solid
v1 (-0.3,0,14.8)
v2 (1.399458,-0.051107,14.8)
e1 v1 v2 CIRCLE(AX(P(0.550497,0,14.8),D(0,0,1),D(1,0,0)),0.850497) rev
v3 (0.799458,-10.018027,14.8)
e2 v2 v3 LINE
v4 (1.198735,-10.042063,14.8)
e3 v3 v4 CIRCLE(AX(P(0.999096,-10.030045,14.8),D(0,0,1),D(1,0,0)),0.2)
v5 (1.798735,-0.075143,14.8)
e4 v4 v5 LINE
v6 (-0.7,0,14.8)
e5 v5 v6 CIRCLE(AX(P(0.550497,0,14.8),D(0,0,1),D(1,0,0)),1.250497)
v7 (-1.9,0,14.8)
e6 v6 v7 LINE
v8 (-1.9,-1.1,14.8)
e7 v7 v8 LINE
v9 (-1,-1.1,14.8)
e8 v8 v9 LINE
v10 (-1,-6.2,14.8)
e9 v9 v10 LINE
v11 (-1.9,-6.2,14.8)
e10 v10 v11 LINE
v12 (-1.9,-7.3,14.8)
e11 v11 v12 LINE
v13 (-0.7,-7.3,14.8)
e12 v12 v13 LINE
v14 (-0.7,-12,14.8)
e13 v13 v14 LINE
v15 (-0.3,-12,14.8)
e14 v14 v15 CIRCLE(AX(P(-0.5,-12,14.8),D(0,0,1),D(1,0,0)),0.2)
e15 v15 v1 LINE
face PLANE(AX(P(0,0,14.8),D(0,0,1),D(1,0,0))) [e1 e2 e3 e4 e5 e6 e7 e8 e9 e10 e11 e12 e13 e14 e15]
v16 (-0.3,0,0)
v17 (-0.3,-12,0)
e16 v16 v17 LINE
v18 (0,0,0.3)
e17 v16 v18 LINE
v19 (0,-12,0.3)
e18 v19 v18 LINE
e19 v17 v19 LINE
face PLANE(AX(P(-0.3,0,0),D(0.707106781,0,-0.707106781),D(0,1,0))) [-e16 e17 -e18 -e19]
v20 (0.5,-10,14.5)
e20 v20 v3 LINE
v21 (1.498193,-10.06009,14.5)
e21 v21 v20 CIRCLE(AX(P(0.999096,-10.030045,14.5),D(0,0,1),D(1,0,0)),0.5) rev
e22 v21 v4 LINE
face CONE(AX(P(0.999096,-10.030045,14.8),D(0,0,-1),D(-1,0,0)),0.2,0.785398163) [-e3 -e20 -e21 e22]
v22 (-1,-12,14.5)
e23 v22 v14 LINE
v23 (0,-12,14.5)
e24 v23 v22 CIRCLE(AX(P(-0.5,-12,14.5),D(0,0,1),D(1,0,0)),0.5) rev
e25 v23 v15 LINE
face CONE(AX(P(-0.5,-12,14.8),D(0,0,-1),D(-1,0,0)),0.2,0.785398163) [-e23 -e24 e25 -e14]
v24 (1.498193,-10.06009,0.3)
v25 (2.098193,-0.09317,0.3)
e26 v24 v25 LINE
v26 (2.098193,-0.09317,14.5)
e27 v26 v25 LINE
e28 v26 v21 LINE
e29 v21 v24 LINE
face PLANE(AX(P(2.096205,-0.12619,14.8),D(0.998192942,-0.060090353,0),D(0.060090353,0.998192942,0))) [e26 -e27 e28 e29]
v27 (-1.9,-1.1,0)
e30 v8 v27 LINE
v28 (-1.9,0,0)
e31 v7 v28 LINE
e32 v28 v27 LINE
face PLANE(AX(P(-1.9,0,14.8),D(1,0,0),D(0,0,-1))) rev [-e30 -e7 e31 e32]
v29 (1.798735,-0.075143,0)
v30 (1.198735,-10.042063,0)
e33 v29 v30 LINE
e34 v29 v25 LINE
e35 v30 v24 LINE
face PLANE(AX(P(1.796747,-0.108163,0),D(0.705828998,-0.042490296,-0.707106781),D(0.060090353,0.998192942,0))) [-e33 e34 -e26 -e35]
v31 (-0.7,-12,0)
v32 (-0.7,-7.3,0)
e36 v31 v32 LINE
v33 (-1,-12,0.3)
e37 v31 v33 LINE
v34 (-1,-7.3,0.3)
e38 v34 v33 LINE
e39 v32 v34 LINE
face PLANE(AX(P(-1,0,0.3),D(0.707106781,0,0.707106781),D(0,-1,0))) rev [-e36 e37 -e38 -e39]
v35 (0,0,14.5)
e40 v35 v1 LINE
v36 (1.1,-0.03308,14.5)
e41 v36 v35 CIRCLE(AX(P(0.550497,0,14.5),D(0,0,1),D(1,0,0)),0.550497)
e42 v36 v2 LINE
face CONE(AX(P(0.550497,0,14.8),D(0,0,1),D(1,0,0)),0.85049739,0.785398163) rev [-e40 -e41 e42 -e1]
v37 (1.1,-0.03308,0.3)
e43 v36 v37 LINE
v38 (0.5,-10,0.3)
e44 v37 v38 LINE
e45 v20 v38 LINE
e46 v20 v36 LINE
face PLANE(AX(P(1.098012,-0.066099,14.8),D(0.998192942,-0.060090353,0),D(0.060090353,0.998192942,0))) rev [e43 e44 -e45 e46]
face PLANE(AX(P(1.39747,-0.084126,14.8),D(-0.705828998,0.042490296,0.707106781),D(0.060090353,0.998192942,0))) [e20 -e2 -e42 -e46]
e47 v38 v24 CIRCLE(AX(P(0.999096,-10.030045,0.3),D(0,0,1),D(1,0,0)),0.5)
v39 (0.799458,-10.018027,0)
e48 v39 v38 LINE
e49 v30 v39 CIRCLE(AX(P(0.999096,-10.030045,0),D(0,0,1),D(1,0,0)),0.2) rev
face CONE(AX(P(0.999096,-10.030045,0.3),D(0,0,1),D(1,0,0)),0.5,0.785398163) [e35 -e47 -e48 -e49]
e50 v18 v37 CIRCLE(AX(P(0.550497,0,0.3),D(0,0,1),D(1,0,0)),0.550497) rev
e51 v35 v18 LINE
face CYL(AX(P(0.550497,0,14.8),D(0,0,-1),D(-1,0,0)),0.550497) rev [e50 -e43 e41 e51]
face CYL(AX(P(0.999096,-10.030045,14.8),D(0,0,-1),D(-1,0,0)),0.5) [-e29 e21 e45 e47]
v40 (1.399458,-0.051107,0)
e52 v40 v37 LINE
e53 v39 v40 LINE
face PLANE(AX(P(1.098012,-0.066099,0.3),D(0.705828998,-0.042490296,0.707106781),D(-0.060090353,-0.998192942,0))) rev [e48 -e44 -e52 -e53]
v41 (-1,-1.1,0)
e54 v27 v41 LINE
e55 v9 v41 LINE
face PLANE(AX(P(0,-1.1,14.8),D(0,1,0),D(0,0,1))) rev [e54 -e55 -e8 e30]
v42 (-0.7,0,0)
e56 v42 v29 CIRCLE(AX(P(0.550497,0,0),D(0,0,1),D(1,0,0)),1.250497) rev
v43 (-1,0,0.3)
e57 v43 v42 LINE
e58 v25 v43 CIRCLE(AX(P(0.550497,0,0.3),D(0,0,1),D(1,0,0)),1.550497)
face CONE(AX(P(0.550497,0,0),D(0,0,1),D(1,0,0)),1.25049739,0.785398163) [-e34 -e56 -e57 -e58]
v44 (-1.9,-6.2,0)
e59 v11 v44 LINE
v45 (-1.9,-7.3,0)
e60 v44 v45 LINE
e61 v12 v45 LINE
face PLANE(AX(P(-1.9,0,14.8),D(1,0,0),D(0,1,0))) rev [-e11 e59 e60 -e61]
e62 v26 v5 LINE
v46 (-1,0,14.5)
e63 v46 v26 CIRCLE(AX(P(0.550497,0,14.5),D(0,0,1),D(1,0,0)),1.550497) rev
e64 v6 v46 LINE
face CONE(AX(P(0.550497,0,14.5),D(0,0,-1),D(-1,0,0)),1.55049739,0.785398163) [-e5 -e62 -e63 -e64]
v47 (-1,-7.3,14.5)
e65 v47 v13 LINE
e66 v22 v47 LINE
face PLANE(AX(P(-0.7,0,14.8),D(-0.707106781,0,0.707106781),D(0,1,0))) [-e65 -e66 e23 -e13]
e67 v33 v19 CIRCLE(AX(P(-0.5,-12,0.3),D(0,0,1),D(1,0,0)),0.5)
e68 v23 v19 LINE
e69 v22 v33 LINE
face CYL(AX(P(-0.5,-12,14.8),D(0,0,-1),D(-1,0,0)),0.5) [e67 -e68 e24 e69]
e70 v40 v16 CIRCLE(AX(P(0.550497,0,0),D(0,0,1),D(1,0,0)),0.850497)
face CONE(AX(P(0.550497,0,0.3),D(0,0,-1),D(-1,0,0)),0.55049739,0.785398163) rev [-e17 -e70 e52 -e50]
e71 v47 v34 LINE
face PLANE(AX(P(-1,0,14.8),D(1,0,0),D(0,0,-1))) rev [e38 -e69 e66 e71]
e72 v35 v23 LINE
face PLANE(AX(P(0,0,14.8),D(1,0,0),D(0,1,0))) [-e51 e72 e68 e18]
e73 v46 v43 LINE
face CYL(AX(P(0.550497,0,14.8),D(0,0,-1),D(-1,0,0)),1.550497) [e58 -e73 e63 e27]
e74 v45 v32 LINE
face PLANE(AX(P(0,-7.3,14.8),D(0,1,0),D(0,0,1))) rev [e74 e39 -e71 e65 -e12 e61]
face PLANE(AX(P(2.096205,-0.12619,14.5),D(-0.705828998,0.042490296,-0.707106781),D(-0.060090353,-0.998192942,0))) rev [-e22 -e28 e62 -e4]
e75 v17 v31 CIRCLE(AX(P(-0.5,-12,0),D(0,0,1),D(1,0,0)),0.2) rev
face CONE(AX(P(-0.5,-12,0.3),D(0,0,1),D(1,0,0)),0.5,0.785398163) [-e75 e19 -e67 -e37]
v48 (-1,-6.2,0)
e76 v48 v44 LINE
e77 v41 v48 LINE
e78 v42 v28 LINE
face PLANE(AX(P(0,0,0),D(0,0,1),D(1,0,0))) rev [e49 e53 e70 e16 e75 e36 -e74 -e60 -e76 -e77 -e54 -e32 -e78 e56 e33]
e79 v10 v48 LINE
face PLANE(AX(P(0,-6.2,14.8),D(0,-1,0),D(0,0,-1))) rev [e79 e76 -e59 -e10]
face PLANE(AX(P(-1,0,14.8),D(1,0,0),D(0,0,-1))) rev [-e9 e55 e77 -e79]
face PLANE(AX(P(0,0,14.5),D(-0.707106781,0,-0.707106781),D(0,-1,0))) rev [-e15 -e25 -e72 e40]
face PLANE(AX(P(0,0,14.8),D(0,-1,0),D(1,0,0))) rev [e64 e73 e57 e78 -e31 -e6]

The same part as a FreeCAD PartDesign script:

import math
import FreeCAD as App
import Part
import Sketcher

V = App.Vector


def edges_at(feature, points):
    """Names of the edges that pass closest to the given points."""
    edges = feature.Shape.Edges
    near = lambda p: min(range(len(edges)), key=lambda i: edges[i].distToShape(Part.Vertex(*p))[0])
    return sorted({f"Edge{near(p) + 1}" for p in points})

doc = App.newDocument("Part")
body = doc.addObject("PartDesign::Body", "Body")

# Sketch on XY plane
sketch1 = body.newObject("Sketcher::SketchObject", "Sketch")
sketch1.AttachmentSupport = (doc.getObject("XY_Plane"), [""])
sketch1.MapMode = "FlatFace"
sketch1.addGeometry([
    Part.LineSegment(V(1.1, 0, 0), V(0.5, -10, 0)),  # 0
    Part.ArcOfCircle(Part.Circle(V(1, -10, 0), V(0, 0, 1), 0.5), math.radians(177), math.radians(357)),  # 1
    Part.LineSegment(V(1.5, -10.1, 0), V(2.1, -0.1, 0)),  # 2
    Part.ArcOfCircle(Part.Circle(V(0.6, 0, 0), V(0, 0, 1), 1.6), math.radians(-3), math.radians(180)),  # 3
    Part.LineSegment(V(-1, 0, 0), V(-1.9, 0, 0)),  # 4
    Part.LineSegment(V(-1.9, 0, 0), V(-1.9, -1.1, 0)),  # 5
    Part.LineSegment(V(-1.9, -1.1, 0), V(-1, -1.1, 0)),  # 6
    Part.LineSegment(V(-1, -1.1, 0), V(-1, -6.2, 0)),  # 7
    Part.LineSegment(V(-1, -6.2, 0), V(-1.9, -6.2, 0)),  # 8
    Part.LineSegment(V(-1.9, -6.2, 0), V(-1.9, -7.3, 0)),  # 9
    Part.LineSegment(V(-1.9, -7.3, 0), V(-1, -7.3, 0)),  # 10
    Part.LineSegment(V(-1, -7.3, 0), V(-1, -12, 0)),  # 11
    Part.ArcOfCircle(Part.Circle(V(-0.5, -12, 0), V(0, 0, 1), 0.5), math.radians(180), math.radians(360)),  # 12
    Part.LineSegment(V(0, -12, 0), V(0, 0, 0)),  # 13
    Part.ArcOfCircle(Part.Circle(V(0.6, 0, 0), V(0, 0, 1), 0.6), math.radians(-3), math.radians(180)),  # 14
], False)
sketch1.addConstraint([
    Sketcher.Constraint("Tangent", 0, 2, 1, 1),
    Sketcher.Constraint("Tangent", 1, 2, 2, 1),
    Sketcher.Constraint("Tangent", 2, 2, 3, 1),
    Sketcher.Constraint("Coincident", 3, 2, 4, 1),
    Sketcher.Constraint("Coincident", 4, 2, 5, 1),
    Sketcher.Constraint("Coincident", 5, 2, 6, 1),
    Sketcher.Constraint("Coincident", 6, 2, 7, 1),
    Sketcher.Constraint("Coincident", 7, 2, 8, 1),
    Sketcher.Constraint("Coincident", 8, 2, 9, 1),
    Sketcher.Constraint("Coincident", 9, 2, 10, 1),
    Sketcher.Constraint("Coincident", 10, 2, 11, 1),
    Sketcher.Constraint("Tangent", 11, 2, 12, 1),
    Sketcher.Constraint("Tangent", 12, 2, 13, 1),
    Sketcher.Constraint("Tangent", 13, 2, 14, 2),
    Sketcher.Constraint("Tangent", 14, 1, 0, 1),
    Sketcher.Constraint("Horizontal", 4),
    Sketcher.Constraint("Vertical", 5),
    Sketcher.Constraint("Horizontal", 6),
    Sketcher.Constraint("Vertical", 7),
    Sketcher.Constraint("Horizontal", 8),
    Sketcher.Constraint("Vertical", 9),
    Sketcher.Constraint("Horizontal", 10),
    Sketcher.Constraint("Vertical", 11),
    Sketcher.Constraint("Vertical", 13),
    Sketcher.Constraint("Coincident", 13, 2, -1, 1),
    Sketcher.Constraint("Coincident", 14, 3, 3, 3),
    Sketcher.Constraint("Equal", 1, 12),
    Sketcher.Constraint("PointOnObject", 3, 2, -1),
    Sketcher.Constraint("Parallel", 0, 2),
    Sketcher.Constraint("Vertical", 3, 2, 6, 2),
    Sketcher.Constraint("Vertical", 5, 2, 8, 2),
    Sketcher.Constraint("Equal", 5, 9),
    Sketcher.Constraint("Radius", 1, 0.5),
    Sketcher.Constraint("DistanceY", 13, 1, 13, 2, 12.0),
    Sketcher.Constraint("DistanceX", 4, 2, 4, 1, 0.9),
    Sketcher.Constraint("DistanceY", 5, 2, 5, 1, 1.1),
    Sketcher.Constraint("DistanceY", 7, 2, 7, 1, 5.1),
    Sketcher.Constraint("DistanceY", 0, 2, -1, 1, 10.0),
    Sketcher.Constraint("DistanceX", 12, 3, 0, 2, 1.0),
    Sketcher.Constraint("DistanceX", -1, 1, 14, 1, 1.1),
])
pad1 = body.newObject("PartDesign::Pad", "Pad")
pad1.Profile = sketch1
pad1.Length = 14.8
doc.recompute()

chamfer = body.newObject("PartDesign::Chamfer", "Chamfer")
chamfer.Base = (pad1, edges_at(pad1, [
    (0.969, -10.529, 14.8),
    (1.798, -5.077, 14.8),
    (0.567, 0.55, 0),
    (0, -6, 0),
    (-0.5, -12.5, 0),
    (-1, -9.65, 0),
    (0.597, 1.55, 14.8),
    (0.597, 1.55, 0),
    (1.798, -5.077, 0),
    (0.969, -10.529, 0),
    (0.8, -5.017, 0),
    (0.8, -5.017, 14.8),
    (-1, -9.65, 14.8),
    (-0.5, -12.5, 14.8),
    (0, -6, 14.8),
    (0.567, 0.55, 14.8),
]))
chamfer.Size = 0.3

doc.recompute()
